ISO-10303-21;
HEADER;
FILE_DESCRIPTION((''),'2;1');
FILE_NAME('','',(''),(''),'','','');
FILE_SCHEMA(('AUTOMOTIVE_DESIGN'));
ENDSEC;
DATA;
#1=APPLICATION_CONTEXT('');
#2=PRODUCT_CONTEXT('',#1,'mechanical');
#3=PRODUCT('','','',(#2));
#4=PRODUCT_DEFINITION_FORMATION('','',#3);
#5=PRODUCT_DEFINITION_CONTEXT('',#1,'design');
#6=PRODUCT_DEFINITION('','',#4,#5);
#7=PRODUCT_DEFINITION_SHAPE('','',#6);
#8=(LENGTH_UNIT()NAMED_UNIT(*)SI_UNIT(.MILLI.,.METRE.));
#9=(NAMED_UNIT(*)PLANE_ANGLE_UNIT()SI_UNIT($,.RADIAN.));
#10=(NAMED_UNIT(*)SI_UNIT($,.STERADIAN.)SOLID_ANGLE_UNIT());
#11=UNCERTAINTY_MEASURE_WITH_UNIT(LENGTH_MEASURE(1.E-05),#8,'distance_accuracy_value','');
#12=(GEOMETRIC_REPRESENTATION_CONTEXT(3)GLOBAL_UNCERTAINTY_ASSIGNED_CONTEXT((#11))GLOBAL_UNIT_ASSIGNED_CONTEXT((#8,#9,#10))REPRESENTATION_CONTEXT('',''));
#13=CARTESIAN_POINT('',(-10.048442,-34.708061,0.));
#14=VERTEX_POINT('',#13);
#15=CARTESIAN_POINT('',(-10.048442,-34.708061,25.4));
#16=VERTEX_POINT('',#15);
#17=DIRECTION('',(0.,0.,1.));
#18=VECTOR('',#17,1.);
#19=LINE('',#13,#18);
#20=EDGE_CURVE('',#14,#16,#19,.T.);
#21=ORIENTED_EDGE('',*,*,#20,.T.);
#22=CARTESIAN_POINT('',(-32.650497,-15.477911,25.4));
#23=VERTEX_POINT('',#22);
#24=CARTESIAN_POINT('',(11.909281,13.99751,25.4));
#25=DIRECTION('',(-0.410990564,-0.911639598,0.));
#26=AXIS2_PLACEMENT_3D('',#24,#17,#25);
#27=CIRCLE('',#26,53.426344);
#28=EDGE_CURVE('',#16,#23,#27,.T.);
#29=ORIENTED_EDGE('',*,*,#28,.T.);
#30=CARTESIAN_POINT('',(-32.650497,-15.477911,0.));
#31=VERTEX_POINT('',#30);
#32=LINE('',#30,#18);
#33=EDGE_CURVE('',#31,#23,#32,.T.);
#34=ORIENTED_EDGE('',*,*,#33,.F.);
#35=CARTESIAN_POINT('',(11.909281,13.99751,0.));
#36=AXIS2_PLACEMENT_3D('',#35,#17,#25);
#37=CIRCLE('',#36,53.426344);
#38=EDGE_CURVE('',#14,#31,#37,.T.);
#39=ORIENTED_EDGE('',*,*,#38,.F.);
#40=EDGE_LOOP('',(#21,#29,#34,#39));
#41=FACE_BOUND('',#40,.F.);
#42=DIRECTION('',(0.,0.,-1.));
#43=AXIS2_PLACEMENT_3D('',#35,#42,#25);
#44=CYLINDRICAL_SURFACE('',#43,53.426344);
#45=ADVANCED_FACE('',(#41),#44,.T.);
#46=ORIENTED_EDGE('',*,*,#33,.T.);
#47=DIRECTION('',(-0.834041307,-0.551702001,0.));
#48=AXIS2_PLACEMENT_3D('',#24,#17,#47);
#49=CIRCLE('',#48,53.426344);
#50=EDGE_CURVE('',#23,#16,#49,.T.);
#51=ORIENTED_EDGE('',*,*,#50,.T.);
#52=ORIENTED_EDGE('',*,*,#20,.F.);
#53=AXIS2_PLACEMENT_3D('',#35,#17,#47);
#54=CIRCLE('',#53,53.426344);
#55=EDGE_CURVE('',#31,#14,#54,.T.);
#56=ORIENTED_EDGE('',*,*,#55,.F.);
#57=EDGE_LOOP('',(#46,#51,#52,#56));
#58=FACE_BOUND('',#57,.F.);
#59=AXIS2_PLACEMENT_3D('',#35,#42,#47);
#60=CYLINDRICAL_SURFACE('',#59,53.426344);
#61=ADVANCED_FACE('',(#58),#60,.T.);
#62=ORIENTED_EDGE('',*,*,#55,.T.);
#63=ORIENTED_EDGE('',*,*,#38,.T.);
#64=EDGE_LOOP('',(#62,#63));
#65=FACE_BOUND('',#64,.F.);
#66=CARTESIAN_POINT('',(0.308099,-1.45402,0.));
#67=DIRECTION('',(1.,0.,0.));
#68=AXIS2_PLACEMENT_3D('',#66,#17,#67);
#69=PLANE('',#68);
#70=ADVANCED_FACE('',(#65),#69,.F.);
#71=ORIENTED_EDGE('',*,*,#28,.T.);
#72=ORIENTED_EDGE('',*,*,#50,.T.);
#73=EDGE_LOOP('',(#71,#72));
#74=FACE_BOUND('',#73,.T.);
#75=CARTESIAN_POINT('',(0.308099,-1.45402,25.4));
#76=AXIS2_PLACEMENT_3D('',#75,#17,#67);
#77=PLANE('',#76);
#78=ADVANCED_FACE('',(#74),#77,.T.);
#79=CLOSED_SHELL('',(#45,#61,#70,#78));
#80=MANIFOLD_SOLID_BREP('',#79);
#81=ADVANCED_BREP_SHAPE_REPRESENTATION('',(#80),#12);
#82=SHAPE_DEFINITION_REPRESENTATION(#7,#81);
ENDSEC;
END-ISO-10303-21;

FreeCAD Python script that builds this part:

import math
import FreeCAD as App
import Part
import Sketcher
Q = App.Units.Quantity

doc = App.newDocument("Part")
body = doc.addObject("PartDesign::Body", "Body")

sketch1 = doc.addObject("Sketcher::SketchObject", "Sketch")
body.addObject(sketch1)
sketch1.AttachmentSupport = (doc.XY_Plane, [""])
sketch1.MapMode = "FlatFace"
sketch1.addGeometry([
    Part.ArcOfCircle(Part.Circle(App.Vector(12, 14, 0), App.Vector(0, 0, 1), 53), math.radians(-147), math.radians(-114)),
    Part.ArcOfCircle(Part.Circle(App.Vector(12, 14, 0), App.Vector(0, 0, 1), 53), math.radians(-114), math.radians(213)),
], False)
sketch1.addConstraint([
    Sketcher.Constraint("Tangent", 0, 1, 1, 2),
    Sketcher.Constraint("Coincident", 1, 1, 0, 2),
    Sketcher.Constraint("Radius", 0, 53.426344),
    Sketcher.Constraint("DistanceX", -1, 1, 0, 3, 11.909281),
    Sketcher.Constraint("DistanceY", -1, 1, 0, 3, 13.99751),
    Sketcher.Constraint("DistanceY", 0, 1, -1, 1, 15.477911),
    Sketcher.Constraint("DistanceY", 1, 1, -1, 1, 34.708061),
])
pad1 = doc.addObject("PartDesign::Pad", "Pad")
body.addObject(pad1)
pad1.Profile = sketch1
pad1.Length = Q("1 in")

doc.recompute()
